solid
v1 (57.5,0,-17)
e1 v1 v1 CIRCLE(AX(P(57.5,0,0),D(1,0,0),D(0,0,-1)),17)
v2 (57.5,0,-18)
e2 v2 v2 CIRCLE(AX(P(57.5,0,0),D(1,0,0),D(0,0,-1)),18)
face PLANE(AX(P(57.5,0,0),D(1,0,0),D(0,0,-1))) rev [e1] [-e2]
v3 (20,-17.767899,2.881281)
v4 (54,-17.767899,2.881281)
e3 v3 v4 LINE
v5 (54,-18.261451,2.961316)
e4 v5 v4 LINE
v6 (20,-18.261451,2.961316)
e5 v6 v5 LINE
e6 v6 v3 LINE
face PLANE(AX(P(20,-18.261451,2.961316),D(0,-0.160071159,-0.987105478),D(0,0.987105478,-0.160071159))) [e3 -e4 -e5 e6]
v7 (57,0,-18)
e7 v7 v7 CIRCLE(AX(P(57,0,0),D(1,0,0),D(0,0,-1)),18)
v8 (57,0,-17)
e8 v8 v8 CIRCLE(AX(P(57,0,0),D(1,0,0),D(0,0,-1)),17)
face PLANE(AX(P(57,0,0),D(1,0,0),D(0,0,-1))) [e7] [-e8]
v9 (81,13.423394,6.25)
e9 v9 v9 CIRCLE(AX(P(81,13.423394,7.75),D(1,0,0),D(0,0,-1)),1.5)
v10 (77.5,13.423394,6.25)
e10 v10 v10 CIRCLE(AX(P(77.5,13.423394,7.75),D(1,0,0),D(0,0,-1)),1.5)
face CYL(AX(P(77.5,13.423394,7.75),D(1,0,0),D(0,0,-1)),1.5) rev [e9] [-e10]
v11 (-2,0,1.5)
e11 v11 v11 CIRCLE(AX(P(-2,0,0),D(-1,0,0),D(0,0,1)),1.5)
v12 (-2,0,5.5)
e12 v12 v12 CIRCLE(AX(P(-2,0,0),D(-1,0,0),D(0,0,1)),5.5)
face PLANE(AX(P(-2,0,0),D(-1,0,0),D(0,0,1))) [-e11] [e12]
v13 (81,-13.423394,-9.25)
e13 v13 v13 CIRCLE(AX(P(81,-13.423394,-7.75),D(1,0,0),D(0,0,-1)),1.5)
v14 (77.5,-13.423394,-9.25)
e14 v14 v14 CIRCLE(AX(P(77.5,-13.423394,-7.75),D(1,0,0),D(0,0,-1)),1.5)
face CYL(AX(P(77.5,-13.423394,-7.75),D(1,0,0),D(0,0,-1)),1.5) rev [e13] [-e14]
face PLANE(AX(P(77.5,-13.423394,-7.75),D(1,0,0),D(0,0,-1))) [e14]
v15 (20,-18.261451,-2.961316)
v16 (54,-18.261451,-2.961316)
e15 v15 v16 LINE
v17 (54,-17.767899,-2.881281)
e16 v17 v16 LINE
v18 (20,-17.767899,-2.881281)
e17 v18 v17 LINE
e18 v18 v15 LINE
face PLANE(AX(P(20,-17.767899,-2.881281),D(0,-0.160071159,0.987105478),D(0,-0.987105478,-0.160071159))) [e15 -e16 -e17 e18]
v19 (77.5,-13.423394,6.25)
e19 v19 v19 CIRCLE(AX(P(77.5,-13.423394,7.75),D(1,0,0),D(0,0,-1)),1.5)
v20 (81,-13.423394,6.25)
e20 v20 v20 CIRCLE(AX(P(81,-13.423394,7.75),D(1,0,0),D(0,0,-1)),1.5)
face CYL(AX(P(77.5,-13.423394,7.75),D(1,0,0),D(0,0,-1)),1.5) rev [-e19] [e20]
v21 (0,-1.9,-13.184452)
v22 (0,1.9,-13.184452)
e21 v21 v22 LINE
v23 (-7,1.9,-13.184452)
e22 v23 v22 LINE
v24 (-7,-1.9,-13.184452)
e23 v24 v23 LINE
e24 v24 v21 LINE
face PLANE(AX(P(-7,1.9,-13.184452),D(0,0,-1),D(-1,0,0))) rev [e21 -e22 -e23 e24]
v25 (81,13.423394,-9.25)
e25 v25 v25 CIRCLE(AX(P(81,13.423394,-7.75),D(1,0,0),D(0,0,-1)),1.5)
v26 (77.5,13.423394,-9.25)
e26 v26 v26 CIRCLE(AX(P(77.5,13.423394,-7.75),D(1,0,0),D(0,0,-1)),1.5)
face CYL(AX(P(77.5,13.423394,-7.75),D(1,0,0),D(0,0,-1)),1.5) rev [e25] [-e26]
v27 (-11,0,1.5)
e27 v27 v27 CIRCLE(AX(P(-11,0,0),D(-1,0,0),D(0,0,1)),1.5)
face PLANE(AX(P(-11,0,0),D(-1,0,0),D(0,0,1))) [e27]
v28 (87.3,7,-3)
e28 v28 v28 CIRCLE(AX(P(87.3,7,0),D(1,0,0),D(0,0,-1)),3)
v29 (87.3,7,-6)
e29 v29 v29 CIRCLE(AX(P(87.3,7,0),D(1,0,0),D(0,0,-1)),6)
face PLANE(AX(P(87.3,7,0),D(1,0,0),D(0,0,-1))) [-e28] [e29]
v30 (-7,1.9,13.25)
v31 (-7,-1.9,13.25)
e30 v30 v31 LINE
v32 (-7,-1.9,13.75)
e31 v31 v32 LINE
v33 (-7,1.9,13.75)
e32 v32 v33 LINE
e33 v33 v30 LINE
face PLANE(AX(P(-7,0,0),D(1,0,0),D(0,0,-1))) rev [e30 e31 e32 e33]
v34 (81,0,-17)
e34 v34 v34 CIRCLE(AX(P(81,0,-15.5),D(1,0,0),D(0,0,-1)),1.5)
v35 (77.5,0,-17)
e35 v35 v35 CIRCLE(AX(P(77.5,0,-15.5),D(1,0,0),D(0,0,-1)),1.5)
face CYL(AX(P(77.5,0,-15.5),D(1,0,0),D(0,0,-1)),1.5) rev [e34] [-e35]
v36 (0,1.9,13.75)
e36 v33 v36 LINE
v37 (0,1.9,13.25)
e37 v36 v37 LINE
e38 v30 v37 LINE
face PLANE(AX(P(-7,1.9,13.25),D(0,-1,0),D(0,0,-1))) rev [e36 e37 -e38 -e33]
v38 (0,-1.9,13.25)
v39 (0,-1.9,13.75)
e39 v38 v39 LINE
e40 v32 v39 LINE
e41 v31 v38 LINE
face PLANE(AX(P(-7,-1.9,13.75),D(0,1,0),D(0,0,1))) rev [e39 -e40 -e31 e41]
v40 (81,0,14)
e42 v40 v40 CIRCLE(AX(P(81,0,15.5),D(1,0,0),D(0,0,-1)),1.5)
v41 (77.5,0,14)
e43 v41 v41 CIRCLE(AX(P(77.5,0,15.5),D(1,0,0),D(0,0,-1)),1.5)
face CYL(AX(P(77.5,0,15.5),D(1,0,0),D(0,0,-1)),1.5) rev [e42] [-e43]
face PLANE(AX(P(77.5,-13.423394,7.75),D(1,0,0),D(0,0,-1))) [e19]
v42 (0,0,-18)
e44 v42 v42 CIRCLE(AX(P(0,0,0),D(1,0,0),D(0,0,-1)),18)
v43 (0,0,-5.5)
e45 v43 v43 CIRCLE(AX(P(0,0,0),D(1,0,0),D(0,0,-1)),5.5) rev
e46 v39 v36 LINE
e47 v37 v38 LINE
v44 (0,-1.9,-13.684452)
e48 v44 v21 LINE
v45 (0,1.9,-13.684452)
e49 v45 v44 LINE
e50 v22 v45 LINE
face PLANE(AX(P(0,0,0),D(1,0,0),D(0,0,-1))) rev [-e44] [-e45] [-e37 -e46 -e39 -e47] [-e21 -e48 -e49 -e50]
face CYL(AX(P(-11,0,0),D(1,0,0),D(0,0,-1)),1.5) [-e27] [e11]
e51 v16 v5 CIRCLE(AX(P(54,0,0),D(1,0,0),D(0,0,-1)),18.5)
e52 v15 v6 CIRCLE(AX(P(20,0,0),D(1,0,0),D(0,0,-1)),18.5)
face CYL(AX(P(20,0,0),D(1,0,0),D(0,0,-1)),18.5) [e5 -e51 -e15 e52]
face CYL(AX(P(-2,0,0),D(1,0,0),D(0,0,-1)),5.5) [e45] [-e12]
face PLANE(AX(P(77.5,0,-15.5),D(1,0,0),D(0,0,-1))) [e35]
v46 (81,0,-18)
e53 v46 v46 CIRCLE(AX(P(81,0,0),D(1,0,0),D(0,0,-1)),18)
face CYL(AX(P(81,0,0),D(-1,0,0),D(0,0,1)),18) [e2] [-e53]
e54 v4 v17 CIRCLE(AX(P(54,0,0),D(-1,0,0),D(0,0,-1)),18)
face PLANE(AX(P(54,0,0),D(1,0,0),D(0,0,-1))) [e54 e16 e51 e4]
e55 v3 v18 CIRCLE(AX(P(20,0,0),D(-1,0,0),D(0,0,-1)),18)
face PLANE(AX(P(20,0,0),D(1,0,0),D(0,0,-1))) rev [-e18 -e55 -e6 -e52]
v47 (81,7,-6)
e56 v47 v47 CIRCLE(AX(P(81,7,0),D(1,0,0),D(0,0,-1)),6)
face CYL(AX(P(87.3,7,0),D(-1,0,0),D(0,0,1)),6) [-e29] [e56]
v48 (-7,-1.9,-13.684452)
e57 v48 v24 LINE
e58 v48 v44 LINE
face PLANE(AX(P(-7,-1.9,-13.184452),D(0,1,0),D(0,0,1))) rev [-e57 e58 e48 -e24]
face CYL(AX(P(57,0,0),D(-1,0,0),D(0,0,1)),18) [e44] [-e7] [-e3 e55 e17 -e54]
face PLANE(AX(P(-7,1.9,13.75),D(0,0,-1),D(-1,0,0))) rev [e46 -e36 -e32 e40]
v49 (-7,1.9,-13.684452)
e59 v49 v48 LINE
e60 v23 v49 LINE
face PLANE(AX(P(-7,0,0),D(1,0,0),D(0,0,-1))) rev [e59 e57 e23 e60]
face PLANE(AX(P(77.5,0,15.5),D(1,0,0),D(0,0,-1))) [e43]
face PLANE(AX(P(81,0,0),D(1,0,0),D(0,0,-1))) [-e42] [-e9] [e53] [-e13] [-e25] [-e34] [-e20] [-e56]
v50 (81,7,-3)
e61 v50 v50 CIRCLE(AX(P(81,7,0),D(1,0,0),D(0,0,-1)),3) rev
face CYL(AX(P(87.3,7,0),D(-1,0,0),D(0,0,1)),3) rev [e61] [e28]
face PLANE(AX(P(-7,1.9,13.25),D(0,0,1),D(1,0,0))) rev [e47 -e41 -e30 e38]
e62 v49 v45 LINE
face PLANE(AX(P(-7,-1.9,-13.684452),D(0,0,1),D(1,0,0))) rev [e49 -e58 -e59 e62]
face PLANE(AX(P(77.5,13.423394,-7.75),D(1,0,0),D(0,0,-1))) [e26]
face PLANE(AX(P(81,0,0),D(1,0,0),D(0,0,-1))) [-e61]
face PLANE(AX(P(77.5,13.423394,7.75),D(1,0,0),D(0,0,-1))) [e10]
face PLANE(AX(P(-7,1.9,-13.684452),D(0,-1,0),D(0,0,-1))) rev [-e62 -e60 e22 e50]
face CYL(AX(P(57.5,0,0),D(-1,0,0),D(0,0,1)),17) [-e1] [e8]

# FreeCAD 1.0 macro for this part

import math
import FreeCAD as App
import Part
import Sketcher
from FreeCAD import Vector


def add_polygon(sketch, points):
    """Adds a closed chain of lines whose ends are joined by coincident constraints."""
    first, n = sketch.GeometryCount, len(points)
    for a, b in zip(points, points[1:] + points[:1]):
        sketch.addGeometry(Part.LineSegment(App.Vector(*a, 0), App.Vector(*b, 0)), False)
    for i in range(n):
        sketch.addConstraint(Sketcher.Constraint("Coincident", first + i, 2, first + (i + 1) % n, 1))

doc = App.newDocument("Part")
body = doc.addObject("PartDesign::Body", "Body")

sketch1 = doc.addObject("Sketcher::SketchObject", "Sketch")
body.addObject(sketch1)
sketch1.AttachmentSupport = (doc.YZ_Plane, [""])
sketch1.MapMode = "FlatFace"
sketch1.addGeometry(Part.Circle(Vector(0, 0, 0), Vector(0, 0, 1), 18), False)
sketch1.addConstraint(Sketcher.Constraint("Coincident", 0, 3, -1, 1))
sketch1.addConstraint(Sketcher.Constraint("Diameter", 0, 36.0))
pad1 = doc.addObject("PartDesign::Pad", "Pad")
body.addObject(pad1)
pad1.Profile = sketch1
pad1.Length = 57

sketch2 = doc.addObject("Sketcher::SketchObject", "Sketch001")
body.addObject(sketch2)
sketch2.AttachmentSupport = (doc.YZ_Plane, [""])
sketch2.MapMode = "FlatFace"
sketch2.AttachmentOffset = App.Placement(Vector(0, 0, 57), App.Rotation())
sketch2.addGeometry(Part.Circle(Vector(0, 0, 0), Vector(0, 0, 1), 17), False)
sketch2.addConstraint(Sketcher.Constraint("Coincident", 0, 3, -1, 1))
sketch2.addConstraint(Sketcher.Constraint("Diameter", 0, 34.0))
pad2 = doc.addObject("PartDesign::Pad", "Pad001")
body.addObject(pad2)
pad2.Profile = sketch2
pad2.Length = 0.5

sketch3 = doc.addObject("Sketcher::SketchObject", "Sketch002")
body.addObject(sketch3)
sketch3.AttachmentSupport = (doc.YZ_Plane, [""])
sketch3.MapMode = "FlatFace"
sketch3.AttachmentOffset = App.Placement(Vector(0, 0, 57.5), App.Rotation())
sketch3.addGeometry(Part.Circle(Vector(0, 0, 0), Vector(0, 0, 1), 18), False)
sketch3.addConstraint(Sketcher.Constraint("Coincident", 0, 3, -1, 1))
sketch3.addConstraint(Sketcher.Constraint("Diameter", 0, 36.0))
pad3 = doc.addObject("PartDesign::Pad", "Pad002")
body.addObject(pad3)
pad3.Profile = sketch3
pad3.Length = 23.5

sketch4 = doc.addObject("Sketcher::SketchObject", "Sketch003")
body.addObject(sketch4)
sketch4.AttachmentSupport = (doc.YZ_Plane, [""])
sketch4.MapMode = "FlatFace"
sketch4.AttachmentOffset = App.Placement(Vector(0, 0, 81), App.Rotation())
sketch4.addGeometry(Part.Circle(Vector(7, 0, 0), Vector(0, 0, 1), 6), False)
sketch4.addGeometry(Part.Circle(Vector(7, 0, 0), Vector(0, 0, 1), 3), False)
sketch4.addConstraint(Sketcher.Constraint("Coincident", 1, 3, 0, 3))
sketch4.addConstraint(Sketcher.Constraint("PointOnObject", 0, 3, -1))
sketch4.addConstraint(Sketcher.Constraint("Diameter", 0, 12.0))
sketch4.addConstraint(Sketcher.Constraint("Diameter", 1, 6.0))
sketch4.addConstraint(Sketcher.Constraint("DistanceX", -1, 1, 0, 3, 7.0))
pad4 = doc.addObject("PartDesign::Pad", "Pad003")
body.addObject(pad4)
pad4.Profile = sketch4
pad4.Length = 6.3

sketch5 = doc.addObject("Sketcher::SketchObject", "Sketch004")
body.addObject(sketch5)
sketch5.AttachmentSupport = (doc.YZ_Plane, [""])
sketch5.MapMode = "FlatFace"
sketch5.AttachmentOffset = App.Placement(Vector(0, 0, 81), App.Rotation())
sketch5.addGeometry(Part.Circle(Vector(0, 15.5, 0), Vector(0, 0, 1), 1.5), False)
sketch5.addGeometry(Part.Circle(Vector(13.4, 7.8, 0), Vector(0, 0, 1), 1.5), False)
sketch5.addGeometry(Part.Circle(Vector(13.4, -7.8, 0), Vector(0, 0, 1), 1.5), False)
sketch5.addGeometry(Part.Circle(Vector(0, -15.5, 0), Vector(0, 0, 1), 1.5), False)
sketch5.addGeometry(Part.Circle(Vector(-13.4, -7.8, 0), Vector(0, 0, 1), 1.5), False)
sketch5.addGeometry(Part.Circle(Vector(-13.4, 7.8, 0), Vector(0, 0, 1), 1.5), False)
sketch5.addConstraint(Sketcher.Constraint("Equal", 0, 1))
sketch5.addConstraint(Sketcher.Constraint("Equal", 1, 2))
sketch5.addConstraint(Sketcher.Constraint("Equal", 2, 3))
sketch5.addConstraint(Sketcher.Constraint("Equal", 3, 4))
sketch5.addConstraint(Sketcher.Constraint("Equal", 4, 5))
sketch5.addConstraint(Sketcher.Constraint("Symmetric", 0, 3, 3, 3, -1, 1))
sketch5.addConstraint(Sketcher.Constraint("Symmetric", 1, 3, 4, 3, -1, 1))
sketch5.addConstraint(Sketcher.Constraint("Symmetric", 2, 3, 5, 3, -1, 1))
sketch5.addConstraint(Sketcher.Constraint("Symmetric", 2, 3, 4, 3, -2))
sketch5.addConstraint(Sketcher.Constraint("PointOnObject", 0, 3, -2))
sketch5.addConstraint(Sketcher.Constraint("Diameter", 0, 3.0))
sketch5.addConstraint(Sketcher.Constraint("DistanceY", 3, 3, 0, 3, 31.0))
sketch5.addConstraint(Sketcher.Constraint("DistanceY", 2, 3, 1, 3, 15.5))
sketch5.addConstraint(Sketcher.Constraint("DistanceX", -1, 1, 1, 3, 13.423394))
pocket1 = doc.addObject("PartDesign::Pocket", "Pocket")
body.addObject(pocket1)
pocket1.Profile = sketch5
pocket1.Length = 3.5

sketch6 = doc.addObject("Sketcher::SketchObject", "Sketch005")
body.addObject(sketch6)
sketch6.AttachmentSupport = (doc.YZ_Plane, [""])
sketch6.MapMode = "FlatFace"
sketch6.addGeometry(Part.Circle(Vector(0, 0, 0), Vector(0, 0, 1), 6), False)
sketch6.addConstraint(Sketcher.Constraint("Coincident", 0, 3, -1, 1))
sketch6.addConstraint(Sketcher.Constraint("Diameter", 0, 11.0))
pad5 = doc.addObject("PartDesign::Pad", "Pad004")
body.addObject(pad5)
pad5.Profile = sketch6
pad5.Length = 2
pad5.Reversed = True

sketch7 = doc.addObject("Sketcher::SketchObject", "Sketch006")
body.addObject(sketch7)
sketch7.AttachmentSupport = (doc.YZ_Plane, [""])
sketch7.MapMode = "FlatFace"
sketch7.AttachmentOffset = App.Placement(Vector(0, 0, -2), App.Rotation())
sketch7.addGeometry(Part.Circle(Vector(0, 0, 0), Vector(0, 0, 1), 1.5), False)
sketch7.addConstraint(Sketcher.Constraint("Coincident", 0, 3, -1, 1))
sketch7.addConstraint(Sketcher.Constraint("Diameter", 0, 3.0))
pad6 = doc.addObject("PartDesign::Pad", "Pad005")
body.addObject(pad6)
pad6.Profile = sketch7
pad6.Length = 9
pad6.Reversed = True

sketch8 = doc.addObject("Sketcher::SketchObject", "Sketch007")
body.addObject(sketch8)
sketch8.AttachmentSupport = (doc.YZ_Plane, [""])
sketch8.MapMode = "FlatFace"
add_polygon(sketch8, [(1.9, 13.2), (-1.9, 13.2), (-1.9, 13.8), (1.9, 13.8)])
add_polygon(sketch8, [(1.9, -13.7), (-1.9, -13.7), (-1.9, -13.2), (1.9, -13.2)])
sketch8.addConstraint(Sketcher.Constraint("Horizontal", 0))
sketch8.addConstraint(Sketcher.Constraint("Vertical", 1))
sketch8.addConstraint(Sketcher.Constraint("Horizontal", 2))
sketch8.addConstraint(Sketcher.Constraint("Vertical", 3))
sketch8.addConstraint(Sketcher.Constraint("Horizontal", 4))
sketch8.addConstraint(Sketcher.Constraint("Vertical", 5))
sketch8.addConstraint(Sketcher.Constraint("Horizontal", 6))
sketch8.addConstraint(Sketcher.Constraint("Vertical", 7))
sketch8.addConstraint(Sketcher.Constraint("Vertical", 1, 2, 4, 2))
sketch8.addConstraint(Sketcher.Constraint("Vertical", 3, 2, 6, 2))
sketch8.addConstraint(Sketcher.Constraint("Equal", 3, 5))
sketch8.addConstraint(Sketcher.Constraint("DistanceX", 0, 2, 0, 1, 3.8))
sketch8.addConstraint(Sketcher.Constraint("DistanceY", 1, 1, 1, 2, 0.5))
sketch8.addConstraint(Sketcher.Constraint("DistanceX", 0, 2, -1, 1, 1.9))
sketch8.addConstraint(Sketcher.Constraint("DistanceY", -1, 1, 0, 2, 13.25))
sketch8.addConstraint(Sketcher.Constraint("DistanceY", 4, 2, -1, 1, 13.684452))
pad7 = doc.addObject("PartDesign::Pad", "Pad006")
body.addObject(pad7)
pad7.Profile = sketch8
pad7.Length = 7
pad7.Reversed = True

sketch9 = doc.addObject("Sketcher::SketchObject", "Sketch008")
body.addObject(sketch9)
sketch9.AttachmentSupport = (doc.YZ_Plane, [""])
sketch9.MapMode = "FlatFace"
sketch9.AttachmentOffset = App.Placement(Vector(0, 0, 54), App.Rotation())
sketch9.addGeometry(Part.LineSegment(Vector(-17.8, -2.9, 0), Vector(-18.3, -3, 0)), False)
sketch9.addGeometry(Part.ArcOfCircle(Part.Circle(Vector(0, 0, 0), Vector(0, 0, 1), 18.5), math.radians(-171), math.radians(171)), False)
sketch9.addGeometry(Part.LineSegment(Vector(-18.3, 3, 0), Vector(-17.8, 2.9, 0)), False)
sketch9.addGeometry(Part.ArcOfCircle(Part.Circle(Vector(0, 0, 0), Vector(0, 0, 1), 18), math.radians(-171), math.radians(171)), False)
sketch9.addConstraint(Sketcher.Constraint("Coincident", 0, 2, 1, 1))
sketch9.addConstraint(Sketcher.Constraint("Coincident", 1, 2, 2, 1))
sketch9.addConstraint(Sketcher.Constraint("Coincident", 2, 2, 3, 2))
sketch9.addConstraint(Sketcher.Constraint("Coincident", 3, 1, 0, 1))
sketch9.addConstraint(Sketcher.Constraint("Coincident", 1, 3, -1, 1))
sketch9.addConstraint(Sketcher.Constraint("Coincident", 3, 3, -1, 1))
sketch9.addConstraint(Sketcher.Constraint("Vertical", 0, 2, 1, 2))
sketch9.addConstraint(Sketcher.Constraint("Vertical", 2, 2, 3, 1))
sketch9.addConstraint(Sketcher.Constraint("Radius", 3, 18.0))
sketch9.addConstraint(Sketcher.Constraint("Radius", 1, 18.5))
sketch9.addConstraint(Sketcher.Constraint("DistanceX", 2, 2, -1, 1, 17.767899))
sketch9.addConstraint(Sketcher.Constraint("DistanceX", 0, 2, -1, 1, 18.261451))
pad8 = doc.addObject("PartDesign::Pad", "Pad007")
body.addObject(pad8)
pad8.Profile = sketch9
pad8.Length = 34
pad8.Reversed = True

doc.recompute()
